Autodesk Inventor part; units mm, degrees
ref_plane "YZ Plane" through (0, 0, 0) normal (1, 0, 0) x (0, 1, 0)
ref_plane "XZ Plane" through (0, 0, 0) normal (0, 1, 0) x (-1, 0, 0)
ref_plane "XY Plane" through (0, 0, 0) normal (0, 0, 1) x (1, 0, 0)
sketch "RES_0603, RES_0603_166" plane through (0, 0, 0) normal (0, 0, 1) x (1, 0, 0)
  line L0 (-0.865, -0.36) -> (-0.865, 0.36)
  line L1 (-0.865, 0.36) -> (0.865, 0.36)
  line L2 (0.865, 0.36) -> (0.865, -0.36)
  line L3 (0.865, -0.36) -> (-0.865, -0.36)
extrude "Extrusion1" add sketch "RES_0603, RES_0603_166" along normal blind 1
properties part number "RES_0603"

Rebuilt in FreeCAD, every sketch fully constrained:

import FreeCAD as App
import Part
import Sketcher
from FreeCAD import Vector
Q = App.Units.Quantity

doc = App.newDocument("Part")
body = doc.addObject("PartDesign::Body", "Body")

sketch1 = body.newObject("Sketcher::SketchObject", "Sketch")
sketch1.AttachmentSupport = (doc.getObject("XY_Plane"), [""])
sketch1.MapMode = "FlatFace"
sketch1.addGeometry([
    Part.LineSegment(Vector(-0.9, 0.4, 0), Vector(-0.9, -0.4, 0)),
    Part.LineSegment(Vector(-0.9, -0.4, 0), Vector(0.9, -0.4, 0)),
    Part.LineSegment(Vector(0.9, -0.4, 0), Vector(0.9, 0.4, 0)),
    Part.LineSegment(Vector(0.9, 0.4, 0), Vector(-0.9, 0.4, 0)),
], False)
sketch1.addConstraint([
    Sketcher.Constraint("Coincident", 0, 2, 1, 1),
    Sketcher.Constraint("Coincident", 1, 2, 2, 1),
    Sketcher.Constraint("Coincident", 2, 2, 3, 1),
    Sketcher.Constraint("Coincident", 3, 2, 0, 1),
    Sketcher.Constraint("Vertical", 0),
    Sketcher.Constraint("Horizontal", 1),
    Sketcher.Constraint("Vertical", 2),
    Sketcher.Constraint("Horizontal", 3),
    Sketcher.Constraint("Symmetric", 0, 2, 2, 2, -1, 1),
    Sketcher.Constraint("DistanceX", 1, 1, 1, 2, Q("1.73 mm")),
    Sketcher.Constraint("DistanceY", 0, 2, 0, 1, Q("0.72 mm")),
])
pad1 = body.newObject("PartDesign::Pad", "Pad")
pad1.Profile = sketch1
pad1.Length = 1

doc.recompute()
